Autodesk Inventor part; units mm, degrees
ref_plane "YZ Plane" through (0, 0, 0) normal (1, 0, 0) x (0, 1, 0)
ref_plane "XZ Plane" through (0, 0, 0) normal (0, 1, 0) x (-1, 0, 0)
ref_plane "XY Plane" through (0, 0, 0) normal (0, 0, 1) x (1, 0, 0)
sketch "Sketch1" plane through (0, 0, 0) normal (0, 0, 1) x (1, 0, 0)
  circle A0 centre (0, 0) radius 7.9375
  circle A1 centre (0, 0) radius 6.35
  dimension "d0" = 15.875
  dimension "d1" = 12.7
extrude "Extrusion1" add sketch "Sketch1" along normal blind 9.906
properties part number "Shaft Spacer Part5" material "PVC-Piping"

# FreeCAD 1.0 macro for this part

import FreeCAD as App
import Part
import Sketcher
from FreeCAD import Vector
Q = App.Units.Quantity

doc = App.newDocument("Part")
body = doc.addObject("PartDesign::Body", "Body")

sketch1 = body.newObject("Sketcher::SketchObject", "Sketch")
sketch1.AttachmentSupport = (doc.getObject("XY_Plane"), [""])
sketch1.MapMode = "FlatFace"
sketch1.addGeometry([
    Part.Circle(Vector(0, 0, 0), Vector(0, 0, 1), 8),
    Part.Circle(Vector(0, 0, 0), Vector(0, 0, 1), 6),
], False)
sketch1.addConstraint([
    Sketcher.Constraint("Coincident", 0, 3, -1, 1),
    Sketcher.Constraint("Coincident", 1, 3, -1, 1),
    Sketcher.Constraint("Diameter", 1, Q("0.5 in")),
    Sketcher.Constraint("Diameter", 0, Q("0.625 in")),
])
pad1 = body.newObject("PartDesign::Pad", "Pad")
pad1.Profile = sketch1
pad1.Length = Q("0.39 in")

doc.recompute()
